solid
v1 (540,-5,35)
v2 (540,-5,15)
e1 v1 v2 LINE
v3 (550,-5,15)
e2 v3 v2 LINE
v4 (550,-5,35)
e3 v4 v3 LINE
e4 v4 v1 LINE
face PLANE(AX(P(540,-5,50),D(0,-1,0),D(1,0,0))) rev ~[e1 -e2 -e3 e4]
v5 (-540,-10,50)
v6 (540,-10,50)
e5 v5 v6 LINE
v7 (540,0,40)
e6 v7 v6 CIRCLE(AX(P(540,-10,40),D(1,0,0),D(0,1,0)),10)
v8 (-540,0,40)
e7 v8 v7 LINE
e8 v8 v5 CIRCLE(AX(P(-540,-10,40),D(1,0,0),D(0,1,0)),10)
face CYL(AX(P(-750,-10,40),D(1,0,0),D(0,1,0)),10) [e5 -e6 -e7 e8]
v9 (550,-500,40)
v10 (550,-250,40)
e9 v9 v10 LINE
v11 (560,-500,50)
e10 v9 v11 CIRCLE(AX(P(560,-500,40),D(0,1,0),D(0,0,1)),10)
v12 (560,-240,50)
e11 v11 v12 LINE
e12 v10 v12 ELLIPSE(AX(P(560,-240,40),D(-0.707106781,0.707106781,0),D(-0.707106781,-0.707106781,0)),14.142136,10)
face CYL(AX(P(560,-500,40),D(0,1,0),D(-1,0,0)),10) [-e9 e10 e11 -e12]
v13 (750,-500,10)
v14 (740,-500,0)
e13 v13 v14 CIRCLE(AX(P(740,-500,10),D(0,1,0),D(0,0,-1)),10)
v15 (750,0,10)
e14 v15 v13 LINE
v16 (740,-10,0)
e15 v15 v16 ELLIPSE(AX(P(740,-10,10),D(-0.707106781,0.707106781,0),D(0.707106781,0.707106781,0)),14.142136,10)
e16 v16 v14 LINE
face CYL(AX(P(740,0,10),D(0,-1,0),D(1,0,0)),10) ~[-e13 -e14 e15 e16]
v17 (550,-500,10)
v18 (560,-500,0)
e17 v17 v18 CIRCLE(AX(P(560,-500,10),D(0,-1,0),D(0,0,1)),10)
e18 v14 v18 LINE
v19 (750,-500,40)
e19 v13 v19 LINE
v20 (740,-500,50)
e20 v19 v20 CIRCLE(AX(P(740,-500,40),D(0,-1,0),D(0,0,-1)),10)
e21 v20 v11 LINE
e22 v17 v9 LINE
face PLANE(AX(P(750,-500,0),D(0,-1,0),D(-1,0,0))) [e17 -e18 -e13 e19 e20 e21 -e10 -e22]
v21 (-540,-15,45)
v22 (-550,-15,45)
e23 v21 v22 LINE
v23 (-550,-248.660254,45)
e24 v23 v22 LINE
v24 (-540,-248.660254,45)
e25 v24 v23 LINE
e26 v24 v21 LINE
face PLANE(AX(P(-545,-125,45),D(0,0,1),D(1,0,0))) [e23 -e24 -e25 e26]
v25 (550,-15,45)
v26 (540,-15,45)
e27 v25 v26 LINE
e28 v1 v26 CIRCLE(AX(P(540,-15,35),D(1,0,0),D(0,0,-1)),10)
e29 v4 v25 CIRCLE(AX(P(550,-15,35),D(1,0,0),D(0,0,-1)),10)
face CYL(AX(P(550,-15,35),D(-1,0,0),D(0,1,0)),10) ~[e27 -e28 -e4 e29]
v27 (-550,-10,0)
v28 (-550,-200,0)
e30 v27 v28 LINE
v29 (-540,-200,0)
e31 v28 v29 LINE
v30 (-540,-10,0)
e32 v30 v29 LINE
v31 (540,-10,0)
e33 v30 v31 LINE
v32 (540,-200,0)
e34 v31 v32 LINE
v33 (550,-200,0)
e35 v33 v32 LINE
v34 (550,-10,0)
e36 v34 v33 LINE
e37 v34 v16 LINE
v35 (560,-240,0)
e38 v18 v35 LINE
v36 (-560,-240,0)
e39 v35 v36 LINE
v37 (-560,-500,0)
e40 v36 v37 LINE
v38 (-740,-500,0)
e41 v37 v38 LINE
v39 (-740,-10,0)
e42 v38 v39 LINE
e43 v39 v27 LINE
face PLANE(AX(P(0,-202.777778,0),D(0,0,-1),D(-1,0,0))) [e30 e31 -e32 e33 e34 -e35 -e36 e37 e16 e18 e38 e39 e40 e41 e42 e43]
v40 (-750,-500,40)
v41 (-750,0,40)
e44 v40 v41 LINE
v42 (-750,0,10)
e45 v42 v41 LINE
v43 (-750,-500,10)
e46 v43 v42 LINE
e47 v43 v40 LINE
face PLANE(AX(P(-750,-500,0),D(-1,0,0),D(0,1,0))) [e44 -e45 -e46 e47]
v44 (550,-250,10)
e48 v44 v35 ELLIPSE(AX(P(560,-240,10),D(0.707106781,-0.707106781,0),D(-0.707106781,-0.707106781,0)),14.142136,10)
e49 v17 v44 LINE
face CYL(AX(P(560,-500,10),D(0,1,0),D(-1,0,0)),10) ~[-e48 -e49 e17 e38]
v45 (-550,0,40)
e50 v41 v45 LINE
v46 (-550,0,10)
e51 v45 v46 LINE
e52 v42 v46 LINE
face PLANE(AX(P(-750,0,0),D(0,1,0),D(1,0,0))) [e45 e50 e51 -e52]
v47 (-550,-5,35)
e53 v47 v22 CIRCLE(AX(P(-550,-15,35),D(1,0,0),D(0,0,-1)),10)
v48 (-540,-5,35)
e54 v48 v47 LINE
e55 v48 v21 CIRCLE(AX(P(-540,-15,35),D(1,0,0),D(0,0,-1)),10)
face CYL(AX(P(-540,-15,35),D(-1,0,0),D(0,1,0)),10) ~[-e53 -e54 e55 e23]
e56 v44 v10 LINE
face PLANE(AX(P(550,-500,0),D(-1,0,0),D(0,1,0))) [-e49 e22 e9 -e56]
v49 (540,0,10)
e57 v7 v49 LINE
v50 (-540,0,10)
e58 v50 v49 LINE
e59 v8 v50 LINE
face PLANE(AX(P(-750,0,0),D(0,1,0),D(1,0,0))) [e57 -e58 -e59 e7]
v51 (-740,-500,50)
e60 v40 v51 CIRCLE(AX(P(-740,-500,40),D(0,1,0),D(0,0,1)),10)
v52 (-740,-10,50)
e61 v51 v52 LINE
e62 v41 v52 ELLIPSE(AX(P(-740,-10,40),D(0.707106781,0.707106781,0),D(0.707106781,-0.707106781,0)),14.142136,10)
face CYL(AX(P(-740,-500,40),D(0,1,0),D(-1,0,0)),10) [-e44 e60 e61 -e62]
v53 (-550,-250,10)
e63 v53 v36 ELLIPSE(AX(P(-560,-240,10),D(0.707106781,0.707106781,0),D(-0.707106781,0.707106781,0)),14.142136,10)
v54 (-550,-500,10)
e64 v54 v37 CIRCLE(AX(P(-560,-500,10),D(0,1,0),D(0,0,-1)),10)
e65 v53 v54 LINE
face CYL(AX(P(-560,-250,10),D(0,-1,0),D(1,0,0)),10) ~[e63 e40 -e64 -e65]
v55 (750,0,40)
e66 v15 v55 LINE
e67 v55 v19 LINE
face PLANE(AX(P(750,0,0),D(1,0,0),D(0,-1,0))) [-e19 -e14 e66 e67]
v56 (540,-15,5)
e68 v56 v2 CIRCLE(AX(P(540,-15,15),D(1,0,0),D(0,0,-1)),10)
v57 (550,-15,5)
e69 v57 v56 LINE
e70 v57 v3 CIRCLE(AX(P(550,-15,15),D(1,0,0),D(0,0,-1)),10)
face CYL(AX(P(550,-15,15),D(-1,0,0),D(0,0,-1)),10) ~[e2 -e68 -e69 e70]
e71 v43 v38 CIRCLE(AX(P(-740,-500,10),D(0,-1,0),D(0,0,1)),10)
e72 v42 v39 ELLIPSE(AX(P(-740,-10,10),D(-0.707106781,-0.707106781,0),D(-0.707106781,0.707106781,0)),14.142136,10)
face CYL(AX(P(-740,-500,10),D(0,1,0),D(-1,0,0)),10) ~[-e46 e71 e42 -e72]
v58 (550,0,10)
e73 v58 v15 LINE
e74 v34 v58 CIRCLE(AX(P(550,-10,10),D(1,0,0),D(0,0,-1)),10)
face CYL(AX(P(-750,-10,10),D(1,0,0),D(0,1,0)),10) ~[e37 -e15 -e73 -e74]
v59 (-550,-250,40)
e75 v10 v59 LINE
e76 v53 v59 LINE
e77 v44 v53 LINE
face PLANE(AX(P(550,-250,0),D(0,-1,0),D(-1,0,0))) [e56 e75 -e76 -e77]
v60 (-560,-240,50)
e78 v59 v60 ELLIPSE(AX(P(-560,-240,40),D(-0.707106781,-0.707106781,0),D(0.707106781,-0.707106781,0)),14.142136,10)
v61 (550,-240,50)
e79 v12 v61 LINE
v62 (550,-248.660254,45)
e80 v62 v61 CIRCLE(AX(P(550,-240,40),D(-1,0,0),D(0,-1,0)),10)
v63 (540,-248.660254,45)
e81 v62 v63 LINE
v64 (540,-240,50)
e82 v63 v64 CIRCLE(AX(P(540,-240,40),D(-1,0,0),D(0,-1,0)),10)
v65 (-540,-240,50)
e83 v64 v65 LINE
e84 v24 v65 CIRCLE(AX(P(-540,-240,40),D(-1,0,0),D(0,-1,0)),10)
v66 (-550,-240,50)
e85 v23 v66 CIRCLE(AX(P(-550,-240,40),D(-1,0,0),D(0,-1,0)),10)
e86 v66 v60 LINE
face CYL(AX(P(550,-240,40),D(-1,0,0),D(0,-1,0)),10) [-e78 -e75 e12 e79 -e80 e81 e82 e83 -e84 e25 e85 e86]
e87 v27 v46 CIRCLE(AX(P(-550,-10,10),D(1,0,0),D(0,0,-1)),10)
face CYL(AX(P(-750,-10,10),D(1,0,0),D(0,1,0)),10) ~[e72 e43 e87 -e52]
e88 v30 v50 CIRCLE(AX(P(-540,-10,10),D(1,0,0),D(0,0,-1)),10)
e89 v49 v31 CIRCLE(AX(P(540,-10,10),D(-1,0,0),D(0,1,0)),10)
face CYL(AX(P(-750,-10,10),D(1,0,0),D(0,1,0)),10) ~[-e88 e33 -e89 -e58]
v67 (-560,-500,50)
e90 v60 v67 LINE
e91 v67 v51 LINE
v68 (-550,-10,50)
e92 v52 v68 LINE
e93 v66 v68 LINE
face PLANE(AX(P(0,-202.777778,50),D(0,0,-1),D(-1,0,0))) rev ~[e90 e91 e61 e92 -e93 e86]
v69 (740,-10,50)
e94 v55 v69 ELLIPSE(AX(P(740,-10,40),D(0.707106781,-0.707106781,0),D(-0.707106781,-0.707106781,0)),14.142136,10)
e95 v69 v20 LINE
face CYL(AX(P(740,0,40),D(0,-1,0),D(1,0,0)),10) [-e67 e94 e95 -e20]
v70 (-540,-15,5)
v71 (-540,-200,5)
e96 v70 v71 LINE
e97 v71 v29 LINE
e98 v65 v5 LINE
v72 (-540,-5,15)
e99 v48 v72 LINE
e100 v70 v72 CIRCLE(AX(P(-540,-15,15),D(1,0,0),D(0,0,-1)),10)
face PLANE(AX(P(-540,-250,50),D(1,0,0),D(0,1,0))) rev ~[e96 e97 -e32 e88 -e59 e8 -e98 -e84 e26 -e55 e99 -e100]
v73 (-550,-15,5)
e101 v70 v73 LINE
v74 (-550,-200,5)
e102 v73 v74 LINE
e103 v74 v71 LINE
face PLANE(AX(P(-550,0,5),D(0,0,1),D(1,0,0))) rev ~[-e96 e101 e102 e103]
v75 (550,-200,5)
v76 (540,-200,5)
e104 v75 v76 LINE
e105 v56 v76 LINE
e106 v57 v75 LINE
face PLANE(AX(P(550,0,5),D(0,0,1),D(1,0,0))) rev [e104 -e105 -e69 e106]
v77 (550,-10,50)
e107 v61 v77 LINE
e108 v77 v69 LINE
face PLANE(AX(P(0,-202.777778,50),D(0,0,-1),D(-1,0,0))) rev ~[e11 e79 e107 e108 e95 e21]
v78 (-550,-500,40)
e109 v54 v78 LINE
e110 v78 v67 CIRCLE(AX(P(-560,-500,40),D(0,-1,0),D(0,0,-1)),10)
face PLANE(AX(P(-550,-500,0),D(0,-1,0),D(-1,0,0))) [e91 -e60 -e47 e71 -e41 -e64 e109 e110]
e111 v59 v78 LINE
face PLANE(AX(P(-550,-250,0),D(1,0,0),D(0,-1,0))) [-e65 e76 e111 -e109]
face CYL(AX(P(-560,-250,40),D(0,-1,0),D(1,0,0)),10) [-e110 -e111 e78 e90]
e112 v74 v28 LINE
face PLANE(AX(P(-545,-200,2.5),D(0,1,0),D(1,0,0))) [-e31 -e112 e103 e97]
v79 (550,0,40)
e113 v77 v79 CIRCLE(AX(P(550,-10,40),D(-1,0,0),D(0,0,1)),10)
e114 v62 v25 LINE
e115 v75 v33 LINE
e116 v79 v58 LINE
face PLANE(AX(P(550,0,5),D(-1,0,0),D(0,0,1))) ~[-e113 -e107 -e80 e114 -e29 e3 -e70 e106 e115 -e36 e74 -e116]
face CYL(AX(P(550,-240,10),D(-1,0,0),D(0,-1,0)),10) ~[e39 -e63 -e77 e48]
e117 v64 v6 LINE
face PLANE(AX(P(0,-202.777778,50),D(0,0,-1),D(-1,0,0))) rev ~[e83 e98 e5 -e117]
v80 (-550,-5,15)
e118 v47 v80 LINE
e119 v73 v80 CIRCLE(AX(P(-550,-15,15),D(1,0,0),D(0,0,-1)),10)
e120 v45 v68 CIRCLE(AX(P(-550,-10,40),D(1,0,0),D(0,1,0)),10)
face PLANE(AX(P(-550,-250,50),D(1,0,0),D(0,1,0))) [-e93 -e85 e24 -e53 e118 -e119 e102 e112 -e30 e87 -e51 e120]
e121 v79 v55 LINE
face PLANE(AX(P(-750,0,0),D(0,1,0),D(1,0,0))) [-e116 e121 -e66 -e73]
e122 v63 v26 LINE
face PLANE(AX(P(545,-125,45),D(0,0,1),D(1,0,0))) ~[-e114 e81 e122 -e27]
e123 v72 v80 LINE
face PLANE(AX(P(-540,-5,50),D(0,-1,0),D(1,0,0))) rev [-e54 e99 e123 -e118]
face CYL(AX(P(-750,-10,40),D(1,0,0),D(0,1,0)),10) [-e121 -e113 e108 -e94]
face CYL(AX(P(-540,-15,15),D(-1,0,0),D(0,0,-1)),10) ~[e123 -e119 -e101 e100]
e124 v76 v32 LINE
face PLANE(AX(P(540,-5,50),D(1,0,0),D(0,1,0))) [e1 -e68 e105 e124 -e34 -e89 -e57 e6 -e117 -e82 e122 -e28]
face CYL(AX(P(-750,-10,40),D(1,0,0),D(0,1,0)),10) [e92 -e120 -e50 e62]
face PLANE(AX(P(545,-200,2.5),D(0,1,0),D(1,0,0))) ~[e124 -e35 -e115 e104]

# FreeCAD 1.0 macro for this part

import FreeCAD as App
import Part
import Sketcher
Q = App.Units.Quantity


def edges_at(feature, points):
    """Names of the edges that pass closest to the given points."""
    edges = feature.Shape.Edges
    near = lambda p: min(range(len(edges)), key=lambda i: edges[i].distToShape(Part.Vertex(*p))[0])
    return sorted({f"Edge{near(p) + 1}" for p in points})


def add_polygon(sketch, points):
    """Adds a closed chain of lines whose ends are joined by coincident constraints."""
    first, n = sketch.GeometryCount, len(points)
    for a, b in zip(points, points[1:] + points[:1]):
        sketch.addGeometry(Part.LineSegment(App.Vector(*a, 0), App.Vector(*b, 0)), False)
    for i in range(n):
        sketch.addConstraint(Sketcher.Constraint("Coincident", first + i, 2, first + (i + 1) % n, 1))

doc = App.newDocument("Part")
body = doc.addObject("PartDesign::Body", "Body")

sketch1 = doc.addObject("Sketcher::SketchObject", "Sketch")
body.addObject(sketch1)
sketch1.AttachmentSupport = (doc.XY_Plane, [""])
sketch1.MapMode = "FlatFace"
add_polygon(sketch1, [(750, 0), (-750, 0), (-750, -500), (-550, -500), (-550, -250), (550, -250), (550, -500), (750, -500)])
sketch1.addConstraint([
    Sketcher.Constraint("Horizontal", 0),
    Sketcher.Constraint("Vertical", 1),
    Sketcher.Constraint("Horizontal", 2),
    Sketcher.Constraint("Vertical", 3),
    Sketcher.Constraint("Horizontal", 4),
    Sketcher.Constraint("Vertical", 5),
    Sketcher.Constraint("Horizontal", 6),
    Sketcher.Constraint("Vertical", 7),
    Sketcher.Constraint("Symmetric", 0, 2, 7, 2, -1, 1),
    Sketcher.Constraint("Symmetric", 2, 2, 5, 2, -2),
    Sketcher.Constraint("DistanceX", 0, 2, 0, 1, Q("1500 mm")),
    Sketcher.Constraint("DistanceX", 2, 1, 2, 2, Q("200 mm")),
    Sketcher.Constraint("DistanceY", 1, 2, 1, 1, Q("500 mm")),
    Sketcher.Constraint("DistanceY", 3, 1, 3, 2, Q("250 mm")),
])
pad1 = doc.addObject("PartDesign::Pad", "Pad")
body.addObject(pad1)
pad1.Profile = sketch1
pad1.Length = 50
doc.recompute()

fillet = doc.addObject("PartDesign::Fillet", "Fillet")
body.addObject(fillet)
fillet.Base = (pad1, edges_at(pad1, [
    (0, -250, 0),
    (-550, -375, 0),
    (-750, -250, 0),
    (-550, -375, 50),
    (0, -250, 50),
    (550, -375, 50),
    (750, -250, 50),
    (0, 0, 50),
    (-750, -250, 50),
    (0, 0, 0),
    (750, -250, 0),
    (550, -375, 0),
]))
fillet.Radius = 10

sketch2 = doc.addObject("Sketcher::SketchObject", "Sketch001")
body.addObject(sketch2)
sketch2.AttachmentSupport = (doc.XY_Plane, [""])
sketch2.MapMode = "FlatFace"
sketch2.AttachmentOffset = App.Placement(App.Vector(0, 0, 50), App.Rotation())
add_polygon(sketch2, [(-550, 0), (-550, -250), (-540, -250), (-540, 0)])
sketch2.addConstraint([
    Sketcher.Constraint("Vertical", 0),
    Sketcher.Constraint("Horizontal", 1),
    Sketcher.Constraint("Vertical", 2),
    Sketcher.Constraint("Horizontal", 3),
    Sketcher.Constraint("PointOnObject", 2, 2, -1),
    Sketcher.Constraint("DistanceX", 1, 1, 1, 2, Q("10 mm")),
    Sketcher.Constraint("DistanceY", 0, 2, 0, 1, Q("250 mm")),
    Sketcher.Constraint("DistanceX", 0, 2, -1, 1, Q("550 mm")),
])
pocket1 = doc.addObject("PartDesign::Pocket", "Pocket")
body.addObject(pocket1)
pocket1.Profile = sketch2
pocket1.Length = 5
doc.recompute()

mirrored = doc.addObject("PartDesign::Mirrored", "Mirrored")
body.addObject(mirrored)
mirrored.Originals = [pocket1]
mirrored.MirrorPlane = (doc.YZ_Plane, [""])
body.Tip = mirrored

sketch3 = doc.addObject("Sketcher::SketchObject", "Sketch002")
body.addObject(sketch3)
sketch3.AttachmentSupport = (doc.XZ_Plane, [""])
sketch3.MapMode = "FlatFace"
add_polygon(sketch3, [(-550, 0), (-550, 5), (-540, 5), (-540, 0)])
sketch3.addConstraint([
    Sketcher.Constraint("Vertical", 0),
    Sketcher.Constraint("Horizontal", 1),
    Sketcher.Constraint("Vertical", 2),
    Sketcher.Constraint("Horizontal", 3),
    Sketcher.Constraint("PointOnObject", 2, 2, -1),
    Sketcher.Constraint("DistanceX", 1, 1, 1, 2, Q("10 mm")),
    Sketcher.Constraint("DistanceY", 0, 1, 0, 2, Q("5 mm")),
    Sketcher.Constraint("DistanceX", 0, 2, -1, 1, Q("550 mm")),
])
pocket2 = doc.addObject("PartDesign::Pocket", "Pocket001")
body.addObject(pocket2)
pocket2.Profile = sketch3
pocket2.Length = 200
pocket2.Reversed = True
doc.recompute()

mirrored2 = doc.addObject("PartDesign::Mirrored", "Mirrored001")
body.addObject(mirrored2)
mirrored2.Originals = [pocket2]
mirrored2.MirrorPlane = (doc.YZ_Plane, [""])
body.Tip = mirrored2

sketch4 = doc.addObject("Sketcher::SketchObject", "Sketch003")
body.addObject(sketch4)
sketch4.AttachmentSupport = (doc.XY_Plane, [""])
sketch4.MapMode = "FlatFace"
sketch4.AttachmentOffset = App.Placement(App.Vector(0, 0, 50), App.Rotation())
add_polygon(sketch4, [(540, 0), (540, -5), (550, -5), (550, 0)])
sketch4.addConstraint([
    Sketcher.Constraint("Vertical", 0),
    Sketcher.Constraint("Horizontal", 1),
    Sketcher.Constraint("Vertical", 2),
    Sketcher.Constraint("Horizontal", 3),
    Sketcher.Constraint("PointOnObject", 2, 2, -1),
    Sketcher.Constraint("DistanceX", 1, 1, 1, 2, Q("10 mm")),
    Sketcher.Constraint("DistanceY", 0, 2, 0, 1, Q("5 mm")),
    Sketcher.Constraint("DistanceX", -1, 1, 0, 2, Q("540 mm")),
])
pocket3 = doc.addObject("PartDesign::Pocket", "Pocket002")
body.addObject(pocket3)
pocket3.Profile = sketch4
pocket3.Length = 50
doc.recompute()

fillet2 = doc.addObject("PartDesign::Fillet", "Fillet001")
body.addObject(fillet2)
fillet2.Base = (pocket3, edges_at(pocket3, [(545, -5, 45), (545, -5, 5)]))
fillet2.Radius = 10
doc.recompute()

mirrored3 = doc.addObject("PartDesign::Mirrored", "Mirrored002")
body.addObject(mirrored3)
mirrored3.Originals = [pocket3]
mirrored3.MirrorPlane = (doc.YZ_Plane, [""])
body.Tip = mirrored3
doc.recompute()

fillet3 = doc.addObject("PartDesign::Fillet", "Fillet002")
body.addObject(fillet3)
fillet3.Base = (mirrored3, edges_at(mirrored3, [(-545, -5, 5), (-545, -5, 45)]))
fillet3.Radius = 10

doc.recompute()
